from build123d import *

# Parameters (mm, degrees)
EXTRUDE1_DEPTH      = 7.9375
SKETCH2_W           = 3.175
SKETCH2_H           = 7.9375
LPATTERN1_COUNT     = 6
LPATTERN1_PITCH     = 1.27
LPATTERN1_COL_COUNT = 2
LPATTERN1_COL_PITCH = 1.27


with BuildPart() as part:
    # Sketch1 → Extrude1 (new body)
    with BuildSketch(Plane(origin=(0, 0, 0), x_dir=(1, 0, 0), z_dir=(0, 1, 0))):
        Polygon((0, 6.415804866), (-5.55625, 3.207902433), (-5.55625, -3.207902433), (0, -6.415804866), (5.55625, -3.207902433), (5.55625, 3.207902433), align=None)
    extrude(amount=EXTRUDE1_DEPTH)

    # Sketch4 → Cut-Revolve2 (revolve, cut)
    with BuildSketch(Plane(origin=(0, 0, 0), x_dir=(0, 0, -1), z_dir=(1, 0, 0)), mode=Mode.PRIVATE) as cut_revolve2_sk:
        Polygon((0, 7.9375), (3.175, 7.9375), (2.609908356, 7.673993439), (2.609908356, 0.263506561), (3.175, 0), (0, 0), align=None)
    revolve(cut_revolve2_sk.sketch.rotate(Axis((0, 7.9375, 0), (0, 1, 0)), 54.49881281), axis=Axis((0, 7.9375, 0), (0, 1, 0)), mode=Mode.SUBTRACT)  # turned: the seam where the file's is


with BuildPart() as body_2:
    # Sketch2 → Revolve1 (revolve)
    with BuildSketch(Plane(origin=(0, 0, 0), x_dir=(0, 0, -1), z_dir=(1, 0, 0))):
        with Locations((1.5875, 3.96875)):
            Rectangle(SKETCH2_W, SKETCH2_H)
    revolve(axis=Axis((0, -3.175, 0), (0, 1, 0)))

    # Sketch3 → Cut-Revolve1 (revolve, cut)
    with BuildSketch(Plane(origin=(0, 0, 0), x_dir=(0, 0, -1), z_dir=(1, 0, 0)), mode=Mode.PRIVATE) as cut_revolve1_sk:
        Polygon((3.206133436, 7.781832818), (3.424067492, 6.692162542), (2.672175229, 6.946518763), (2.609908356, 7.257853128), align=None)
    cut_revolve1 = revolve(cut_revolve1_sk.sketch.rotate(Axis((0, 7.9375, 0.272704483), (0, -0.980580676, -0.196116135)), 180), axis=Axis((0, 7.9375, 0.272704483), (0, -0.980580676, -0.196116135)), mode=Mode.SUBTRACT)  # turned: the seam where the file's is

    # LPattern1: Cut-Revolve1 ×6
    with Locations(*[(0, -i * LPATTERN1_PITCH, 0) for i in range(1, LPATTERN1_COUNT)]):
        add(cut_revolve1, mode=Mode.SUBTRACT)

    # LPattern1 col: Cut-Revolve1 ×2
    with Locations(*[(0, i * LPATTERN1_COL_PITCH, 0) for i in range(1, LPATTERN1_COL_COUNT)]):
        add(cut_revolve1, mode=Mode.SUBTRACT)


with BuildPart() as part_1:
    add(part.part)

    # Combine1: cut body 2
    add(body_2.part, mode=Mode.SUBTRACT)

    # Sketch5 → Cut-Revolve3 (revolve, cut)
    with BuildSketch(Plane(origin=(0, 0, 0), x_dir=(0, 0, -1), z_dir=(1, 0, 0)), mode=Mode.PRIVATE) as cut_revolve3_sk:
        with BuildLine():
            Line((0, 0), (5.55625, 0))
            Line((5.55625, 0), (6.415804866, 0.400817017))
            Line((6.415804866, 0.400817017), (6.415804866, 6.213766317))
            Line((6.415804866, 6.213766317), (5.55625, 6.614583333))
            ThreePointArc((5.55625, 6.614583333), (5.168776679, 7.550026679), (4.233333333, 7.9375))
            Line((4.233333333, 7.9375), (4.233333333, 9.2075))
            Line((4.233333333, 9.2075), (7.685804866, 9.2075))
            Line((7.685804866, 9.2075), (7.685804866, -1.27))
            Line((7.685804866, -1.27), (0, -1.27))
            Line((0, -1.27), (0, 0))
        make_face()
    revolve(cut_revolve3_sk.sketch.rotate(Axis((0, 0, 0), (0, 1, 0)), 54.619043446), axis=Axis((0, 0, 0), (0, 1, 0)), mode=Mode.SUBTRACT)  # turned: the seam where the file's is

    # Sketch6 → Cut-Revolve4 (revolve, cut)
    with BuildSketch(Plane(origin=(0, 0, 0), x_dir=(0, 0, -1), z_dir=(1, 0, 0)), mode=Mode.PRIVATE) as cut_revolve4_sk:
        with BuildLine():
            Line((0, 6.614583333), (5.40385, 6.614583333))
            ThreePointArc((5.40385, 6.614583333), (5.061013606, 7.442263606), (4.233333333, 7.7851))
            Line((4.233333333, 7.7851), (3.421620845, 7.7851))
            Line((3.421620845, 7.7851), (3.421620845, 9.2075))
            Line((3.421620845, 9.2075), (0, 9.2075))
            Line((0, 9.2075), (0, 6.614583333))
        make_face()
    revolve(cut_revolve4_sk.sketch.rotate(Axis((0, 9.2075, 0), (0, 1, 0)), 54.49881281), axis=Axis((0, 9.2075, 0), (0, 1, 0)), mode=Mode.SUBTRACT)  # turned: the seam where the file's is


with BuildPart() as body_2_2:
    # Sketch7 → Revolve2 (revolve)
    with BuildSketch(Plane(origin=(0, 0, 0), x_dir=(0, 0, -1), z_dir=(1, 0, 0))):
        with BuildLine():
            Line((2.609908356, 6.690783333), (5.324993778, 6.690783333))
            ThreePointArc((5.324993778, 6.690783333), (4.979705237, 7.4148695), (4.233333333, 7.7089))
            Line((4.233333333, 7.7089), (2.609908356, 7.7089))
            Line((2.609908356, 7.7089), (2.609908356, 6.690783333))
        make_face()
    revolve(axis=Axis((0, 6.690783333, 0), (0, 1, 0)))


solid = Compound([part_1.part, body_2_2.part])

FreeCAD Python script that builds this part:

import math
import FreeCAD as App
import Part
import Sketcher
from FreeCAD import Vector
Q = App.Units.Quantity


def add_polygon(sketch, points):
    """Adds a closed chain of lines whose ends are joined by coincident constraints."""
    first, n = sketch.GeometryCount, len(points)
    for a, b in zip(points, points[1:] + points[:1]):
        sketch.addGeometry(Part.LineSegment(App.Vector(*a, 0), App.Vector(*b, 0)), False)
    for i in range(n):
        sketch.addConstraint(Sketcher.Constraint("Coincident", first + i, 2, first + (i + 1) % n, 1))

doc = App.newDocument("Part")
body = doc.addObject("PartDesign::Body", "Body")

sketch1 = body.newObject("Sketcher::SketchObject", "Sketch")
sketch1.AttachmentSupport = (doc.getObject("XZ_Plane"), [""])
sketch1.MapMode = "FlatFace"
add_polygon(sketch1, [(0, -6), (-6, -3), (-6, 3), (0, 6), (6, 3), (6, -3)])
sketch1.addConstraint([
    Sketcher.Constraint("Vertical", 1),
    Sketcher.Constraint("Vertical", 4),
    Sketcher.Constraint("Symmetric", 0, 2, 3, 2, -1, 1),
    Sketcher.Constraint("Symmetric", 2, 2, 5, 2, -1, 1),
    Sketcher.Constraint("PointOnObject", 2, 2, -2),
    Sketcher.Constraint("Parallel", 2, 5),
    Sketcher.Constraint("Horizontal", 1, 2, 3, 2),
    Sketcher.Constraint("Angle", 0, Q("150 deg")),
    Sketcher.Constraint("DistanceX", 0, 2, -1, 1, Q("0.21875 in")),
    Sketcher.Constraint("DistanceY", 1, 1, 1, 2, Q("6.415805 mm")),
])
pad1 = body.newObject("PartDesign::Pad", "Pad")
pad1.Profile = sketch1
pad1.Length = Q("0.3125 in")
pad1.Reversed = True

sketch2 = body.newObject("Sketcher::SketchObject", "Sketch001")
sketch2.AttachmentSupport = (doc.getObject("YZ_Plane"), [""])
sketch2.MapMode = "FlatFace"
add_polygon(sketch2, [(7.9, -3.2), (7.9, 0), (0, 0), (0, -3.2), (0.3, -2.6), (7.7, -2.6)])
sketch2.addConstraint([
    Sketcher.Constraint("Vertical", 0),
    Sketcher.Constraint("Horizontal", 1),
    Sketcher.Constraint("Vertical", 2),
    Sketcher.Constraint("Horizontal", 4),
    Sketcher.Constraint("Coincident", 1, 2, -1, 1),
    Sketcher.Constraint("Horizontal", 2, 2, 5, 2),
    Sketcher.Constraint("Equal", 3, 5),
    Sketcher.Constraint("Angle", 3, Q("65 deg")),
    Sketcher.Constraint("DistanceX", 1, 2, 1, 1, Q("0.3125 in")),
    Sketcher.Constraint("DistanceY", 0, 1, 0, 2, Q("0.125 in")),
    Sketcher.Constraint("Distance", 3, Q("0.62351 mm")),
])
groove = body.newObject("PartDesign::Groove", "Groove")
groove.Profile = sketch2
groove.ReferenceAxis = (sketch2, ["H_Axis"])
groove.Angle = 360
body2 = doc.addObject("PartDesign::Body", "Body001")

sketch3 = body2.newObject("Sketcher::SketchObject", "Sketch002")
sketch3.AttachmentSupport = (doc.getObject("YZ_Plane001"), [""])
sketch3.MapMode = "FlatFace"
add_polygon(sketch3, [(7.9, 0), (0, 0), (0, -3.2), (7.9, -3.2)])
sketch3.addConstraint([
    Sketcher.Constraint("Horizontal", 0),
    Sketcher.Constraint("Vertical", 1),
    Sketcher.Constraint("Horizontal", 2),
    Sketcher.Constraint("Vertical", 3),
    Sketcher.Constraint("Coincident", 0, 2, -1, 1),
    Sketcher.Constraint("DistanceX", 0, 2, 0, 1, Q("0.3125 in")),
    Sketcher.Constraint("DistanceY", 1, 2, 1, 1, Q("0.125 in")),
])
revolution = body2.newObject("PartDesign::Revolution", "Revolution")
revolution.Profile = sketch3
revolution.ReferenceAxis = (sketch3, ["H_Axis"])
revolution.Angle = 360

sketch4 = body2.newObject("Sketcher::SketchObject", "Sketch003")
sketch4.AttachmentSupport = (doc.getObject("YZ_Plane001"), [""])
sketch4.MapMode = "FlatFace"
add_polygon(sketch4, [(6.69, -3.42), (7.78, -3.21), (7.26, -2.61), (6.95, -2.67)])
sketch4.addGeometry(Part.LineSegment(Vector(7.12, 0.11, 0), Vector(6.03, -0.11, 0)), True)
sketch4.addConstraint([
    Sketcher.Constraint("Parallel", 0, 2),
    Sketcher.Constraint("Parallel", 2, 4),
    Sketcher.Constraint("Equal", 1, 3),
    Sketcher.Constraint("Equal", 0, 4),
    Sketcher.Constraint("Distance", 1, Q("0.03125 in")),
    Sketcher.Constraint("Distance", 2, Q("0.0125 in")),
    Sketcher.Constraint("DistanceY", 0, 2, 4, 1, Q("3.3151 mm")),
    Sketcher.Constraint("Distance", 0, Q("1.11125 mm")),
    Sketcher.Constraint("DistanceY", 1, 2, -1, 1, Q("2.609908 mm")),
    Sketcher.Constraint("DistanceX", -1, 1, 2, 2, Q("6.946519 mm")),
    Sketcher.Constraint("DistanceX", 1, 2, 0, 2, Q("0.52398 mm")),
    Sketcher.Constraint("DistanceX", 4, 1, 1, 2, Q("0.13904 mm")),
])
groove2 = body2.newObject("PartDesign::Groove", "Groove001")
groove2.Profile = sketch4
groove2.ReferenceAxis = (sketch4, ["Axis0"])
groove2.Angle = 360
doc.recompute()

linearpattern = body2.newObject("PartDesign::LinearPattern", "LinearPattern")
linearpattern.Originals = [groove2]
linearpattern.Direction = (doc.getObject("Y_Axis001"), [""])
linearpattern.Mode = "offset"
linearpattern.Offset = Q("0.05 in")
linearpattern.Occurrences = 6
linearpattern.Reversed = True
body2.Tip = linearpattern
doc.recompute()

linearpattern2 = body2.newObject("PartDesign::LinearPattern", "LinearPattern001")
linearpattern2.Originals = [groove2]
linearpattern2.Direction = (doc.getObject("Y_Axis001"), [""])
linearpattern2.Mode = "offset"
linearpattern2.Offset = Q("0.05 in")
linearpattern2.Occurrences = 2
body2.Tip = linearpattern2
doc.recompute()

boolean = body.newObject("PartDesign::Boolean", "Boolean")
boolean.Type = "Cut"
boolean.addObjects([body2])

sketch5 = body.newObject("Sketcher::SketchObject", "Sketch004")
sketch5.AttachmentSupport = (doc.getObject("YZ_Plane"), [""])
sketch5.MapMode = "FlatFace"
sketch5.addGeometry([
    Part.LineSegment(Vector(0, -5.6, 0), Vector(0, 0, 0)),
    Part.LineSegment(Vector(0, 0, 0), Vector(-1.3, 0, 0)),
    Part.LineSegment(Vector(-1.3, 0, 0), Vector(-1.3, -7.7, 0)),
    Part.LineSegment(Vector(-1.3, -7.7, 0), Vector(9.2, -7.7, 0)),
    Part.LineSegment(Vector(9.2, -7.7, 0), Vector(9.2, -4.2, 0)),
    Part.LineSegment(Vector(9.2, -4.2, 0), Vector(7.9, -4.2, 0)),
    Part.ArcOfCircle(Part.Circle(Vector(6.6, -4.2, 0), Vector(0, 0, 1), 1.3), math.radians(-90), math.radians(0)),
    Part.LineSegment(Vector(6.6, -5.6, 0), Vector(6.2, -6.4, 0)),
    Part.LineSegment(Vector(6.2, -6.4, 0), Vector(0.4, -6.4, 0)),
    Part.LineSegment(Vector(0.4, -6.4, 0), Vector(0, -5.6, 0)),
], False)
sketch5.addConstraint([
    Sketcher.Constraint("Coincident", 0, 2, 1, 1),
    Sketcher.Constraint("Coincident", 1, 2, 2, 1),
    Sketcher.Constraint("Coincident", 2, 2, 3, 1),
    Sketcher.Constraint("Coincident", 3, 2, 4, 1),
    Sketcher.Constraint("Coincident", 4, 2, 5, 1),
    Sketcher.Constraint("Coincident", 5, 2, 6, 2),
    Sketcher.Constraint("Coincident", 6, 1, 7, 1),
    Sketcher.Constraint("Coincident", 7, 2, 8, 1),
    Sketcher.Constraint("Coincident", 8, 2, 9, 1),
    Sketcher.Constraint("Coincident", 9, 2, 0, 1),
    Sketcher.Constraint("Vertical", 0),
    Sketcher.Constraint("Horizontal", 1),
    Sketcher.Constraint("Vertical", 2),
    Sketcher.Constraint("Horizontal", 3),
    Sketcher.Constraint("Vertical", 4),
    Sketcher.Constraint("Horizontal", 5),
    Sketcher.Constraint("Horizontal", 8),
    Sketcher.Constraint("Coincident", 0, 2, -1, 1),
    Sketcher.Constraint("Horizontal", 6, 3, 4, 2),
    Sketcher.Constraint("Horizontal", 6, 1, 9, 2),
    Sketcher.Constraint("Equal", 1, 5),
    Sketcher.Constraint("Equal", 7, 9),
    Sketcher.Constraint("Angle", 7, Q("-115 deg")),
    Sketcher.Constraint("DistanceX", 1, 2, 1, 1, Q("0.05 in")),
    Sketcher.Constraint("DistanceY", 0, 1, 0, 2, Q("0.21875 in")),
    Sketcher.Constraint("DistanceY", 3, 2, 7, 2, Q("0.05 in")),
    Sketcher.Constraint("DistanceX", 3, 1, 3, 2, Q("0.4125 in")),
    Sketcher.Constraint("Radius", 6, Q("1.322917 mm")),
    Sketcher.Constraint("DistanceX", 8, 2, 8, 1, Q("5.812949 mm")),
    Sketcher.Constraint("DistanceY", 4, 1, 4, 2, Q("3.452472 mm")),
])
groove3 = body.newObject("PartDesign::Groove", "Groove002")
groove3.Profile = sketch5
groove3.ReferenceAxis = (sketch5, ["H_Axis"])
groove3.Angle = 360

sketch6 = body.newObject("Sketcher::SketchObject", "Sketch005")
sketch6.AttachmentSupport = (doc.getObject("YZ_Plane"), [""])
sketch6.MapMode = "FlatFace"
sketch6.addGeometry([
    Part.LineSegment(Vector(6.6, 0, 0), Vector(6.6, -5.4, 0)),
    Part.ArcOfCircle(Part.Circle(Vector(6.6, -4.2, 0), Vector(0, 0, 1), 1.2), math.radians(-90), math.radians(0)),
    Part.LineSegment(Vector(7.8, -4.2, 0), Vector(7.8, -3.4, 0)),
    Part.LineSegment(Vector(7.8, -3.4, 0), Vector(9.2, -3.4, 0)),
    Part.LineSegment(Vector(9.2, -3.4, 0), Vector(9.2, 0, 0)),
    Part.LineSegment(Vector(9.2, 0, 0), Vector(6.6, 0, 0)),
], False)
sketch6.addConstraint([
    Sketcher.Constraint("Coincident", 0, 2, 1, 1),
    Sketcher.Constraint("Tangent", 1, 2, 2, 1),
    Sketcher.Constraint("Coincident", 2, 2, 3, 1),
    Sketcher.Constraint("Coincident", 3, 2, 4, 1),
    Sketcher.Constraint("Coincident", 4, 2, 5, 1),
    Sketcher.Constraint("Coincident", 5, 2, 0, 1),
    Sketcher.Constraint("Vertical", 0),
    Sketcher.Constraint("Vertical", 2),
    Sketcher.Constraint("Horizontal", 3),
    Sketcher.Constraint("Vertical", 4),
    Sketcher.Constraint("Horizontal", 5),
    Sketcher.Constraint("PointOnObject", 4, 2, -1),
    Sketcher.Constraint("Vertical", 1, 3, 0, 2),
    Sketcher.Constraint("DistanceX", 3, 1, 3, 2, Q("0.056 in")),
    Sketcher.Constraint("DistanceX", -1, 1, 1, 2, Q("0.3065 in")),
    Sketcher.Constraint("Radius", 1, Q("1.170517 mm")),
    Sketcher.Constraint("DistanceY", 0, 2, 0, 1, Q("5.40385 mm")),
    Sketcher.Constraint("DistanceY", 4, 1, 4, 2, Q("3.421621 mm")),
])
groove4 = body.newObject("PartDesign::Groove", "Groove003")
groove4.Profile = sketch6
groove4.ReferenceAxis = (sketch6, ["H_Axis"])
groove4.Angle = 360
body3 = doc.addObject("PartDesign::Body", "Body002")

sketch7 = body3.newObject("Sketcher::SketchObject", "Sketch006")
sketch7.AttachmentSupport = (doc.getObject("YZ_Plane002"), [""])
sketch7.MapMode = "FlatFace"
sketch7.addGeometry([
    Part.LineSegment(Vector(6.7, -2.6, 0), Vector(6.7, -5.3, 0)),
    Part.ArcOfCircle(Part.Circle(Vector(6.6, -4.2, 0), Vector(0, 0, 1), 1.1), math.radians(-86), math.radians(0)),
    Part.LineSegment(Vector(7.7, -4.2, 0), Vector(7.7, -2.6, 0)),
    Part.LineSegment(Vector(7.7, -2.6, 0), Vector(6.7, -2.6, 0)),
], False)
sketch7.addConstraint([
    Sketcher.Constraint("Coincident", 0, 2, 1, 1),
    Sketcher.Constraint("Tangent", 1, 2, 2, 1),
    Sketcher.Constraint("Coincident", 2, 2, 3, 1),
    Sketcher.Constraint("Coincident", 3, 2, 0, 1),
    Sketcher.Constraint("Vertical", 0),
    Sketcher.Constraint("Vertical", 2),
    Sketcher.Constraint("Horizontal", 3),
    Sketcher.Constraint("DistanceX", 1, 3, 0, 2, Q("0.003 in")),
    Sketcher.Constraint("DistanceX", -1, 1, 1, 2, Q("0.3035 in")),
    Sketcher.Constraint("Radius", 1, Q("1.094317 mm")),
    Sketcher.Constraint("DistanceY", 0, 2, 0, 1, Q("2.715085 mm")),
    Sketcher.Constraint("DistanceY", 2, 2, -1, 1, Q("2.609908 mm")),
])
revolution2 = body3.newObject("PartDesign::Revolution", "Revolution001")
revolution2.Profile = sketch7
revolution2.ReferenceAxis = (sketch7, ["H_Axis"])
revolution2.Angle = 360

doc.recompute()
